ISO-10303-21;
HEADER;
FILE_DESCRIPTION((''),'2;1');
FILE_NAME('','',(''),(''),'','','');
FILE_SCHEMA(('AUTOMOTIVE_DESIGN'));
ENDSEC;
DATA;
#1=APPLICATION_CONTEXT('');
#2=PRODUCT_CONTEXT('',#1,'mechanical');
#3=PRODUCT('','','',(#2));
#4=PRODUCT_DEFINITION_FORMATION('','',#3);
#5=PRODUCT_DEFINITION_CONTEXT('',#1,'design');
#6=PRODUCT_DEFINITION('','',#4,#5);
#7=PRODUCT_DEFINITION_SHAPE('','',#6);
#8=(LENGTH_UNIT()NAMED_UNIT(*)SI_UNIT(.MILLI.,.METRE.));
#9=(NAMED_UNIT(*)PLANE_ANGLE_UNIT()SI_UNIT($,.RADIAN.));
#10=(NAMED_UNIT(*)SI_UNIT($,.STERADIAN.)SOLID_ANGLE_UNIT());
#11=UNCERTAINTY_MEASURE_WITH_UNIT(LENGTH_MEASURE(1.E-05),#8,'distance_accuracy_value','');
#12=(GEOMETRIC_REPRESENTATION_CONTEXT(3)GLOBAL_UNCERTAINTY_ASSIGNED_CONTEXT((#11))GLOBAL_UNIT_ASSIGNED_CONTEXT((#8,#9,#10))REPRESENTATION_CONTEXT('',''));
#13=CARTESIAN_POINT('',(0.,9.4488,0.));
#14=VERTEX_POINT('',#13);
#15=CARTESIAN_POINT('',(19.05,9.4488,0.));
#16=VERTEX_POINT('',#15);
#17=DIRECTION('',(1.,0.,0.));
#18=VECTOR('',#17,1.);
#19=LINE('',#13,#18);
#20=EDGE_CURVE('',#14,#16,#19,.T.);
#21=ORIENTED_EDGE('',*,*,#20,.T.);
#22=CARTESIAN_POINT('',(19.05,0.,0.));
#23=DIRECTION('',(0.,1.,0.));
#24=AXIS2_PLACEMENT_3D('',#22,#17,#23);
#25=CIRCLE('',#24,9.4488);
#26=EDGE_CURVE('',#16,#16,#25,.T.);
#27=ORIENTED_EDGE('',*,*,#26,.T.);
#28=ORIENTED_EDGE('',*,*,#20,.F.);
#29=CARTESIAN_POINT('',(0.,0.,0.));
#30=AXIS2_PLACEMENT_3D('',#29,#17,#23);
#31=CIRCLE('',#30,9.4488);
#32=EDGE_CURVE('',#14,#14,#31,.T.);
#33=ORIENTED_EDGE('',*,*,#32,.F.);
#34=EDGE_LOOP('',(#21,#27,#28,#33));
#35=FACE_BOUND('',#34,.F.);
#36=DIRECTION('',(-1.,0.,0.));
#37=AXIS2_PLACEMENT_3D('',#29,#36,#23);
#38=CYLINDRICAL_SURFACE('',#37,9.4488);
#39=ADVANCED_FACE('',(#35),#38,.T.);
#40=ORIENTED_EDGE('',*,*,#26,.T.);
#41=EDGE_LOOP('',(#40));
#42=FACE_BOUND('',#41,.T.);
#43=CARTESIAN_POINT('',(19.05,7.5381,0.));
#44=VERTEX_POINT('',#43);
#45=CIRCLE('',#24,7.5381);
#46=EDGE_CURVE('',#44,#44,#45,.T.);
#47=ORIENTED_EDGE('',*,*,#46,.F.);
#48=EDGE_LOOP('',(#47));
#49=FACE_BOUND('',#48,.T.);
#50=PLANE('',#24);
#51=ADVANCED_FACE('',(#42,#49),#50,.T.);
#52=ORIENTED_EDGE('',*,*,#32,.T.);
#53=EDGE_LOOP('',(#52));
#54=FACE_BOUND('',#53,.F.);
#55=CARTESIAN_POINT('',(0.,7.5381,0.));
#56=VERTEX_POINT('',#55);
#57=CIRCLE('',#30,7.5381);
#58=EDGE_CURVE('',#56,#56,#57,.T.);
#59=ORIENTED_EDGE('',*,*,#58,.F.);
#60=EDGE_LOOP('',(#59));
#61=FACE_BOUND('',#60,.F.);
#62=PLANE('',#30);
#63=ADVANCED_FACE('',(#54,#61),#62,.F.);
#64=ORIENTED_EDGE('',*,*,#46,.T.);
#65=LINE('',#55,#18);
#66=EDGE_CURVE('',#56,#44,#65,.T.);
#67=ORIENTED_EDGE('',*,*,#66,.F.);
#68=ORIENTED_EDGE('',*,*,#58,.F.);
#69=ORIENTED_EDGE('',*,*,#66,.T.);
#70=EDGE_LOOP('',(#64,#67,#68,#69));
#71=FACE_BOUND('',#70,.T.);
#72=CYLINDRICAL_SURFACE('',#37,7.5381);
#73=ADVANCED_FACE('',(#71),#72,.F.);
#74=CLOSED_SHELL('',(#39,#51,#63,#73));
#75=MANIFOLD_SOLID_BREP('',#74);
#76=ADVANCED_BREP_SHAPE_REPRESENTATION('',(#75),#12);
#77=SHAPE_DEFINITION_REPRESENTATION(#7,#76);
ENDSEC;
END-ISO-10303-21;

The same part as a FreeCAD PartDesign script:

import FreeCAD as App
import Part
import Sketcher
from FreeCAD import Vector
Q = App.Units.Quantity

doc = App.newDocument("Part")
body = doc.addObject("PartDesign::Body", "Body")

# Sketch on YZ plane
sketch1 = body.newObject("Sketcher::SketchObject", "Sketch")
sketch1.AttachmentSupport = (doc.getObject("YZ_Plane"), [""])
sketch1.MapMode = "FlatFace"
sketch1.addGeometry(Part.Circle(Vector(0, 0, 0), Vector(0, 0, 1), 9.4488), False)
sketch1.addGeometry(Part.Circle(Vector(0, 0, 0), Vector(0, 0, 1), 7.5381), False)
sketch1.addConstraint(Sketcher.Constraint("Coincident", 0, 3, -1, 1))
sketch1.addConstraint(Sketcher.Constraint("Coincident", 1, 3, -1, 1))
sketch1.addConstraint(Sketcher.Constraint("Diameter", 0, Q("0.744 in")))
sketch1.addConstraint(Sketcher.Constraint("Diameter", 1, 15.0762))
pad1 = body.newObject("PartDesign::Pad", "Pad")
pad1.Profile = sketch1
pad1.Length = Q("0.75 in")

doc.recompute()
